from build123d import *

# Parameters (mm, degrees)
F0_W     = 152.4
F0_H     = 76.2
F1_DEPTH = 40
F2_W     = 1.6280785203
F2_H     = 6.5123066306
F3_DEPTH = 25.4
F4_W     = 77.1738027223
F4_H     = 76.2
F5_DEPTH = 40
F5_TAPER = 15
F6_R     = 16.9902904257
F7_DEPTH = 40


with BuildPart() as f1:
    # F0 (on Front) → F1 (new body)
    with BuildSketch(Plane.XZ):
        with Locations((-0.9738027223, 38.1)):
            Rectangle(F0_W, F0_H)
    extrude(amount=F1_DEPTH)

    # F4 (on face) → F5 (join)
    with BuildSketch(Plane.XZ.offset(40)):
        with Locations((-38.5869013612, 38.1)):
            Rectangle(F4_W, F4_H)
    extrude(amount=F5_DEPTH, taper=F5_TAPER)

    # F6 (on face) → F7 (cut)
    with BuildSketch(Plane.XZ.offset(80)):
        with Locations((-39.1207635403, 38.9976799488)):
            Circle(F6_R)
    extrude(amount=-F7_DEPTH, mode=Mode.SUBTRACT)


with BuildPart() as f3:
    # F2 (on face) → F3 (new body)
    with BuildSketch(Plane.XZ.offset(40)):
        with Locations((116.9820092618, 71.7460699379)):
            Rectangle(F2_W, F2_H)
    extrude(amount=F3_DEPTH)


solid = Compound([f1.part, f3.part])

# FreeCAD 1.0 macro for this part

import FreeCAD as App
import Part
import Sketcher

V = App.Vector
Q = App.Units.Quantity

doc = App.newDocument("Part")
body = doc.addObject("PartDesign::Body", "Body")

# Sketch on XZ plane
sketch1 = body.newObject("Sketcher::SketchObject", "Sketch")
sketch1.AttachmentSupport = (doc.getObject("XZ_Plane"), [""])
sketch1.MapMode = "FlatFace"
sketch1.addGeometry([
    Part.LineSegment(V(-77, 76, 0), V(-77, 0, 0)),
    Part.LineSegment(V(-77, 0, 0), V(75, 0, 0)),
    Part.LineSegment(V(75, 0, 0), V(75, 76, 0)),
    Part.LineSegment(V(75, 76, 0), V(-77, 76, 0)),
], False)
sketch1.addConstraint([
    Sketcher.Constraint("Coincident", 0, 2, 1, 1),
    Sketcher.Constraint("Coincident", 1, 2, 2, 1),
    Sketcher.Constraint("Coincident", 2, 2, 3, 1),
    Sketcher.Constraint("Coincident", 3, 2, 0, 1),
    Sketcher.Constraint("Vertical", 0),
    Sketcher.Constraint("Horizontal", 1),
    Sketcher.Constraint("Vertical", 2),
    Sketcher.Constraint("Horizontal", 3),
    Sketcher.Constraint("PointOnObject", 0, 2, -1),
    Sketcher.Constraint("DistanceX", 1, 1, 1, 2, Q("6 in")),
    Sketcher.Constraint("DistanceY", 0, 2, 0, 1, Q("3 in")),
    Sketcher.Constraint("DistanceX", 0, 2, -1, 1, 77.173803),
])
pad1 = body.newObject("PartDesign::Pad", "Pad")
pad1.Profile = sketch1
pad1.Length = 40

# Sketch on XZ plane
sketch2 = body.newObject("Sketcher::SketchObject", "Sketch001")
sketch2.AttachmentSupport = (doc.getObject("XZ_Plane"), [""])
sketch2.MapMode = "FlatFace"
sketch2.AttachmentOffset = App.Placement(V(0, 0, 40), App.Rotation())
sketch2.addGeometry([
    Part.LineSegment(V(-77, 76, 0), V(-77, 0, 0)),
    Part.LineSegment(V(-77, 0, 0), V(0, 0, 0)),
    Part.LineSegment(V(0, 0, 0), V(0, 76, 0)),
    Part.LineSegment(V(0, 76, 0), V(-77, 76, 0)),
], False)
sketch2.addConstraint([
    Sketcher.Constraint("Coincident", 0, 2, 1, 1),
    Sketcher.Constraint("Coincident", 1, 2, 2, 1),
    Sketcher.Constraint("Coincident", 2, 2, 3, 1),
    Sketcher.Constraint("Coincident", 3, 2, 0, 1),
    Sketcher.Constraint("Vertical", 0),
    Sketcher.Constraint("Horizontal", 1),
    Sketcher.Constraint("Vertical", 2),
    Sketcher.Constraint("Horizontal", 3),
    Sketcher.Constraint("Coincident", 1, 2, -1, 1),
    Sketcher.Constraint("DistanceY", 0, 2, 0, 1, Q("3 in")),
    Sketcher.Constraint("DistanceX", 1, 1, 1, 2, 77.173803),
])
pad2 = body.newObject("PartDesign::Pad", "Pad001")
pad2.Profile = sketch2
pad2.Length = 40
pad2.TaperAngle = -15

# Sketch on XZ plane
sketch3 = body.newObject("Sketcher::SketchObject", "Sketch002")
sketch3.AttachmentSupport = (doc.getObject("XZ_Plane"), [""])
sketch3.MapMode = "FlatFace"
sketch3.AttachmentOffset = App.Placement(V(0, 0, 80), App.Rotation())
sketch3.addGeometry(Part.Circle(V(-39, 39, 0), V(0, 0, 1), 17), False)
sketch3.addConstraint([
    Sketcher.Constraint("Diameter", 0, 33.980581),
    Sketcher.Constraint("DistanceY", -1, 1, 0, 3, 38.99768),
    Sketcher.Constraint("DistanceX", 0, 3, -1, 1, 39.120764),
])
pocket1 = body.newObject("PartDesign::Pocket", "Pocket")
pocket1.Profile = sketch3
pocket1.Length = 40
body2 = doc.addObject("PartDesign::Body", "Body001")

# Sketch on XZ plane
sketch4 = body2.newObject("Sketcher::SketchObject", "Sketch003")
sketch4.AttachmentSupport = (doc.getObject("XZ_Plane001"), [""])
sketch4.MapMode = "FlatFace"
sketch4.AttachmentOffset = App.Placement(V(0, 0, 40), App.Rotation())
sketch4.addGeometry([
    Part.LineSegment(V(116.2, 75, 0), V(116.2, 68.5, 0)),
    Part.LineSegment(V(116.2, 68.5, 0), V(117.8, 68.5, 0)),
    Part.LineSegment(V(117.8, 68.5, 0), V(117.8, 75, 0)),
    Part.LineSegment(V(117.8, 75, 0), V(116.2, 75, 0)),
], False)
sketch4.addConstraint([
    Sketcher.Constraint("Coincident", 0, 2, 1, 1),
    Sketcher.Constraint("Coincident", 1, 2, 2, 1),
    Sketcher.Constraint("Coincident", 2, 2, 3, 1),
    Sketcher.Constraint("Coincident", 3, 2, 0, 1),
    Sketcher.Constraint("Vertical", 0),
    Sketcher.Constraint("Horizontal", 1),
    Sketcher.Constraint("Vertical", 2),
    Sketcher.Constraint("Horizontal", 3),
    Sketcher.Constraint("DistanceX", 1, 1, 1, 2, 1.628079),
    Sketcher.Constraint("DistanceY", 0, 2, 0, 1, 6.512307),
    Sketcher.Constraint("DistanceX", -1, 1, 0, 2, 116.16797),
    Sketcher.Constraint("DistanceY", -1, 1, 0, 2, 68.489917),
])
pad3 = body2.newObject("PartDesign::Pad", "Pad002")
pad3.Profile = sketch4
pad3.Length = Q("1 in")

doc.recompute()
